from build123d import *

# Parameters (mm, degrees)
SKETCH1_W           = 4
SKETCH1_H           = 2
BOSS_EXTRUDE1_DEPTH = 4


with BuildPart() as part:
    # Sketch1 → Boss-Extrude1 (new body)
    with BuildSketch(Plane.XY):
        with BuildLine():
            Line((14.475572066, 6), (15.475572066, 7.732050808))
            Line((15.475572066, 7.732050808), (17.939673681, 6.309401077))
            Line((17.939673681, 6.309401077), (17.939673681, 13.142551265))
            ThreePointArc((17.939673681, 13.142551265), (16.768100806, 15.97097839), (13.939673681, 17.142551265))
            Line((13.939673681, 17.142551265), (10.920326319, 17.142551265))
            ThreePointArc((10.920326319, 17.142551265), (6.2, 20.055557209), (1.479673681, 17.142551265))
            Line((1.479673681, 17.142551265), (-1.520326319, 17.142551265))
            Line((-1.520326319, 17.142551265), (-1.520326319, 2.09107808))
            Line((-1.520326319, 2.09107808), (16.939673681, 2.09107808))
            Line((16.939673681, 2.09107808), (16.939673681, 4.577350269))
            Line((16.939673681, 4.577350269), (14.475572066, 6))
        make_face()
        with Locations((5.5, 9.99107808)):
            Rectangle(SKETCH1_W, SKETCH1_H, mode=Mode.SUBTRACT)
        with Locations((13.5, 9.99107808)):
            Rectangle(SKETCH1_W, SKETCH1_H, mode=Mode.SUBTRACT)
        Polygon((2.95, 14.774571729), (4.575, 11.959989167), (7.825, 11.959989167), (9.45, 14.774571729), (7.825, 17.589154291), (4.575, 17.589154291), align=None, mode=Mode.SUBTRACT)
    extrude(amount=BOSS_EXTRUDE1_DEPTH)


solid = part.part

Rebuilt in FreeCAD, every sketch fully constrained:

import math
import FreeCAD as App
import Part
import Sketcher

V = App.Vector
Q = App.Units.Quantity


def add_polygon(sketch, points):
    """Adds a closed chain of lines whose ends are joined by coincident constraints."""
    first, n = sketch.GeometryCount, len(points)
    for a, b in zip(points, points[1:] + points[:1]):
        sketch.addGeometry(Part.LineSegment(App.Vector(*a, 0), App.Vector(*b, 0)), False)
    for i in range(n):
        sketch.addConstraint(Sketcher.Constraint("Coincident", first + i, 2, first + (i + 1) % n, 1))

doc = App.newDocument("Part")
body = doc.addObject("PartDesign::Body", "Body")

sketch1 = body.newObject("Sketcher::SketchObject", "Sketch")
sketch1.AttachmentSupport = (doc.getObject("XY_Plane"), [""])
sketch1.MapMode = "FlatFace"
sketch1.addGeometry(Part.LineSegment(V(14.5, 6, 0), V(15.5, 7.7, 0)), False)
sketch1.addGeometry(Part.LineSegment(V(15.5, 7.7, 0), V(17.9, 6.3, 0)), False)
sketch1.addGeometry(Part.LineSegment(V(17.9, 6.3, 0), V(17.9, 13.1, 0)), False)
sketch1.addGeometry(Part.ArcOfCircle(Part.Circle(V(13.9, 13.1, 0), V(0, 0, 1), 4), math.radians(0), math.radians(90)), False)
sketch1.addGeometry(Part.LineSegment(V(13.9, 17.1, 0), V(10.9, 17.1, 0)), False)
sketch1.addGeometry(Part.ArcOfCircle(Part.Circle(V(6.2, 14.8, 0), V(0, 0, 1), 5.3), math.radians(27), math.radians(153)), False)
sketch1.addGeometry(Part.LineSegment(V(1.5, 17.1, 0), V(-1.5, 17.1, 0)), False)
sketch1.addGeometry(Part.LineSegment(V(-1.5, 17.1, 0), V(-1.5, 2.1, 0)), False)
sketch1.addGeometry(Part.LineSegment(V(-1.5, 2.1, 0), V(16.9, 2.1, 0)), False)
sketch1.addGeometry(Part.LineSegment(V(16.9, 2.1, 0), V(16.9, 4.6, 0)), False)
sketch1.addGeometry(Part.LineSegment(V(16.9, 4.6, 0), V(14.5, 6, 0)), False)
add_polygon(sketch1, [(7.5, 9), (3.5, 9), (3.5, 11), (7.5, 11)])
add_polygon(sketch1, [(15.5, 9), (11.5, 9), (11.5, 11), (15.5, 11)])
add_polygon(sketch1, [(4.6, 12), (3, 14.8), (4.6, 17.6), (7.8, 17.6), (9.4, 14.8), (7.8, 12)])
sketch1.addConstraint([
    Sketcher.Constraint("Coincident", 0, 2, 1, 1),
    Sketcher.Constraint("Coincident", 1, 2, 2, 1),
    Sketcher.Constraint("Tangent", 2, 2, 3, 1),
    Sketcher.Constraint("Tangent", 3, 2, 4, 1),
    Sketcher.Constraint("Coincident", 4, 2, 5, 1),
    Sketcher.Constraint("Coincident", 5, 2, 6, 1),
    Sketcher.Constraint("Coincident", 6, 2, 7, 1),
    Sketcher.Constraint("Coincident", 7, 2, 8, 1),
    Sketcher.Constraint("Coincident", 8, 2, 9, 1),
    Sketcher.Constraint("Coincident", 9, 2, 10, 1),
    Sketcher.Constraint("Coincident", 10, 2, 0, 1),
    Sketcher.Constraint("Vertical", 2),
    Sketcher.Constraint("Horizontal", 4),
    Sketcher.Constraint("Horizontal", 6),
    Sketcher.Constraint("Vertical", 7),
    Sketcher.Constraint("Horizontal", 8),
    Sketcher.Constraint("Vertical", 9),
    Sketcher.Constraint("Horizontal", 11),
    Sketcher.Constraint("Vertical", 12),
    Sketcher.Constraint("Horizontal", 13),
    Sketcher.Constraint("Vertical", 14),
    Sketcher.Constraint("Horizontal", 15),
    Sketcher.Constraint("Vertical", 16),
    Sketcher.Constraint("Horizontal", 17),
    Sketcher.Constraint("Vertical", 18),
    Sketcher.Constraint("Horizontal", 21),
    Sketcher.Constraint("Horizontal", 24),
    Sketcher.Constraint("Perpendicular", 0, 1),
    Sketcher.Constraint("Parallel", 1, 10),
    Sketcher.Constraint("Perpendicular", 10, 20),
    Sketcher.Constraint("Parallel", 19, 22),
    Sketcher.Constraint("Parallel", 20, 23),
    Sketcher.Constraint("Horizontal", 4, 2, 5, 2),
    Sketcher.Constraint("Horizontal", 14, 2, 15, 2),
    Sketcher.Constraint("Horizontal", 13, 2, 16, 2),
    Sketcher.Constraint("Horizontal", 5, 3, 19, 2),
    Sketcher.Constraint("Horizontal", 19, 2, 22, 2),
    Sketcher.Constraint("Vertical", 21, 2, 23, 2),
    Sketcher.Constraint("Vertical", 20, 2, 24, 2),
    Sketcher.Constraint("Equal", 13, 15),
    Sketcher.Constraint("Equal", 1, 10),
    Sketcher.Constraint("Radius", 3, 4.0),
    Sketcher.Constraint("DistanceX", 6, 2, 6, 1, 3.0),
    Sketcher.Constraint("DistanceX", 11, 2, 11, 1, 4.0),
    Sketcher.Constraint("DistanceY", 12, 1, 12, 2, 2.0),
    Sketcher.Constraint("Angle", 0, Q("60 deg")),
    Sketcher.Constraint("Distance", 0, 2.0),
    Sketcher.Constraint("DistanceY", -1, 1, 10, 2, 6.0),
    Sketcher.Constraint("DistanceX", 14, 2, 15, 2, 4.0),
    Sketcher.Constraint("DistanceX", 8, 1, 8, 2, 18.46),
    Sketcher.Constraint("DistanceX", 21, 1, 21, 2, 3.25),
    Sketcher.Constraint("DistanceX", -1, 1, 5, 3, 6.2),
    Sketcher.Constraint("DistanceX", -1, 1, 11, 2, 3.5),
    Sketcher.Constraint("DistanceY", 7, 2, 11, 2, 6.9),
    Sketcher.Constraint("Distance", 19, 3.25),
    Sketcher.Constraint("DistanceX", -1, 1, 19, 2, 2.95),
    Sketcher.Constraint("Radius", 5, 5.280985),
    Sketcher.Constraint("Distance", 1, 2.845299),
    Sketcher.Constraint("DistanceY", 2, 1, 2, 2, 6.83315),
    Sketcher.Constraint("DistanceX", 4, 2, 4, 1, 3.019347),
    Sketcher.Constraint("DistanceY", 7, 2, 7, 1, 15.051473),
])
pad1 = body.newObject("PartDesign::Pad", "Pad")
pad1.Profile = sketch1
pad1.Length = 4

doc.recompute()
